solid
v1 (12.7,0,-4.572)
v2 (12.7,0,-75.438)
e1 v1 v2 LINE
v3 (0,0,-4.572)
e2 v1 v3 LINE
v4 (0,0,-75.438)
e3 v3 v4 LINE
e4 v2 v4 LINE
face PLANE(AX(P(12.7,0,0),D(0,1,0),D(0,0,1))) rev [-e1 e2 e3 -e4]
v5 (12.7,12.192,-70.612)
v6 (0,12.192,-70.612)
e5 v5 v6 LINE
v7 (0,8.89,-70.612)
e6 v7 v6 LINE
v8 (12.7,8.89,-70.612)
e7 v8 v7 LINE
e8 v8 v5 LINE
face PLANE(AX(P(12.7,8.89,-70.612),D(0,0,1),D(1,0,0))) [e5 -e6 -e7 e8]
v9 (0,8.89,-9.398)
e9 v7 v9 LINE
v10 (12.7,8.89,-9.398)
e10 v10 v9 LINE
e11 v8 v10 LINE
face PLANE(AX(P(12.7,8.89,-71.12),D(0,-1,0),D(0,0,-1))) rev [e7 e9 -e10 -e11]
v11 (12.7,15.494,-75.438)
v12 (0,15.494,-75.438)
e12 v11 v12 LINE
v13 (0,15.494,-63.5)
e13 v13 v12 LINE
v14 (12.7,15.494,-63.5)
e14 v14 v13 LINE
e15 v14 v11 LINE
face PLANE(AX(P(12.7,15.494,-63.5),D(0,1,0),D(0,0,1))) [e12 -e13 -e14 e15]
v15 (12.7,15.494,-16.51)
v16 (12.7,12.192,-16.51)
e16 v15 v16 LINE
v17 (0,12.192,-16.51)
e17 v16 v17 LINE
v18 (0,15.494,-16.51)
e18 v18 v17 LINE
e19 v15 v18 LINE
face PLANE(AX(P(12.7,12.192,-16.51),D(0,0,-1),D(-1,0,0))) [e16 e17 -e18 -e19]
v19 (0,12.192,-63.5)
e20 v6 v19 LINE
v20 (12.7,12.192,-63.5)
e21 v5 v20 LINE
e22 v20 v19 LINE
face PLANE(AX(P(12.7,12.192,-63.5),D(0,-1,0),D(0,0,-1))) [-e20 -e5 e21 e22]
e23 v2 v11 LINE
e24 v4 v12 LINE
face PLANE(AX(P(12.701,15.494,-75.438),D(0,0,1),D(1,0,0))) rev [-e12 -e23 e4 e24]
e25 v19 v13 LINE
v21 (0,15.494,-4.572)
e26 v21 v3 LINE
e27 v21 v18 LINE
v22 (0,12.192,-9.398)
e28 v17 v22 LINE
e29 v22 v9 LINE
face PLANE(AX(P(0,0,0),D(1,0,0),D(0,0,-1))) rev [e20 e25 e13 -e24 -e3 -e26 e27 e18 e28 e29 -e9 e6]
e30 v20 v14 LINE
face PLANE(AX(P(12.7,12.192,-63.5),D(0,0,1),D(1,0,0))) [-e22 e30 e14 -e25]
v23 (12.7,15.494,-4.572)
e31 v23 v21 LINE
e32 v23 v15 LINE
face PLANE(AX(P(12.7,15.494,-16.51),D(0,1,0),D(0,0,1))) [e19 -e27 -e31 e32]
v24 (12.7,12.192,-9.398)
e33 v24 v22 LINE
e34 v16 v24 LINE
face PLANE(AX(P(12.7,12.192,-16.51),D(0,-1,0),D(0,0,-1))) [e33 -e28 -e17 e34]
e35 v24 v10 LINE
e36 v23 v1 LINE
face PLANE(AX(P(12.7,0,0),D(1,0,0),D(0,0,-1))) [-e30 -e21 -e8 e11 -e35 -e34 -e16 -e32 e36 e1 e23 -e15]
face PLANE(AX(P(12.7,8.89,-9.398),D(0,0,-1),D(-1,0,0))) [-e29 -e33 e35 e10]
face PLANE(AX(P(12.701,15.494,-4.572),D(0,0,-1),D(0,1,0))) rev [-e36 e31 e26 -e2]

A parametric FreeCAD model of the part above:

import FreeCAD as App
import Part
import Sketcher

V = App.Vector
Q = App.Units.Quantity

doc = App.newDocument("Part")
params = doc.addObject("Spreadsheet::Sheet", "Params")
for row, (alias, value) in enumerate([
    ("sketch1_width", "0.4 in"),
    ("sketch1_width2", "0.75 in"),
    ("sketch1_height", "3.15 in"),
    ("sketch1_height2", "0.35 in"),
    ("pad1_length", "0.5 in"),
    ("sketch2_width", "0.13 in"),
    ("sketch2_height", "0.28 in"),
    ("sketch2_height2", "0.45 in"),
    ("pad2_length", "0.5 in"),
    ("sketch3_width", "0.14 in"),
    ("sketch3_width2", "0.75 in"),
    ("sketch3_height", "0.17 in"),
    ("sketch3_height2", "0.35 in"),
    ("sketch4_width", "0.61 in"),
    ("sketch4_width2", "0.75 in"),
    ("sketch4_height", "0.17 in"),
    ("sketch4_height2", "0.18 in"),
    ("sketch5_width", "0.13 in"),
    ("sketch5_height", "0.28 in"),
    ("pad3_length", "0.125 in"),
    ("sketch6_width", "0.13 in"),
    ("sketch6_height", "0.28 in"),
    ("pad4_length", "0.125 in"),
    ("sketch7_width", "0.13 in"),
    ("sketch7_height", "0.28 in"),
    ("sketch8_width", "0.13 in"),
    ("sketch8_height", "0.28 in"),
], start=1):
    params.set(f"A{row}", alias)
    params.set(f"B{row}", "=" + value)
    params.setAlias(f"B{row}", alias)

body = doc.addObject("PartDesign::Body", "Body")

# Sketch on YZ plane
sketch1 = body.newObject("Sketcher::SketchObject", "Sketch")
sketch1.AttachmentSupport = (doc.getObject("YZ_Plane"), [""])
sketch1.MapMode = "FlatFace"
sketch1.addGeometry([
    Part.LineSegment(V(0, 0, 0), V(0, -80, 0)),  # 0
    Part.LineSegment(V(0, -80, 0), V(19, -80, 0)),  # 1
    Part.LineSegment(V(19, -80, 0), V(19, -71, 0)),  # 2
    Part.LineSegment(V(19, -71, 0), V(9, -71, 0)),  # 3
    Part.LineSegment(V(9, -71, 0), V(9, -9, 0)),  # 4
    Part.LineSegment(V(9, -9, 0), V(19, -9, 0)),  # 5
    Part.LineSegment(V(19, -9, 0), V(19, 0, 0)),  # 6
    Part.LineSegment(V(19, 0, 0), V(0, 0, 0)),  # 7
], False)
sketch1.addConstraint([
    Sketcher.Constraint("Coincident", 0, 2, 1, 1),
    Sketcher.Constraint("Coincident", 1, 2, 2, 1),
    Sketcher.Constraint("Coincident", 2, 2, 3, 1),
    Sketcher.Constraint("Coincident", 3, 2, 4, 1),
    Sketcher.Constraint("Coincident", 4, 2, 5, 1),
    Sketcher.Constraint("Coincident", 5, 2, 6, 1),
    Sketcher.Constraint("Coincident", 6, 2, 7, 1),
    Sketcher.Constraint("Coincident", 7, 2, 0, 1),
    Sketcher.Constraint("Vertical", 0),
    Sketcher.Constraint("Horizontal", 1),
    Sketcher.Constraint("Vertical", 2),
    Sketcher.Constraint("Horizontal", 3),
    Sketcher.Constraint("Vertical", 4),
    Sketcher.Constraint("Horizontal", 5),
    Sketcher.Constraint("Vertical", 6),
    Sketcher.Constraint("Horizontal", 7),
    Sketcher.Constraint("Coincident", 7, 2, -1, 1),
    Sketcher.Constraint("Vertical", 2, 2, 5, 2),
    Sketcher.Constraint("Equal", 2, 6),
    Sketcher.Constraint("DistanceX", 3, 2, 3, 1, Q("0.4 in")),
    Sketcher.Constraint("DistanceX", 1, 1, 1, 2, Q("0.75 in")),
    Sketcher.Constraint("DistanceY", 0, 2, 0, 1, Q("3.15 in")),
    Sketcher.Constraint("DistanceY", 2, 1, 2, 2, Q("0.35 in")),
])
sketch1.setExpression("Constraints[19]", "Params.sketch1_width")
sketch1.setExpression("Constraints[20]", "Params.sketch1_width2")
sketch1.setExpression("Constraints[21]", "Params.sketch1_height")
sketch1.setExpression("Constraints[22]", "Params.sketch1_height2")
pad1 = body.newObject("PartDesign::Pad", "Pad")
pad1.Profile = sketch1
pad1.setExpression("Length", "Params.pad1_length")

# Sketch on YZ plane
sketch2 = body.newObject("Sketcher::SketchObject", "Sketch001")
sketch2.AttachmentSupport = (doc.getObject("YZ_Plane"), [""])
sketch2.MapMode = "FlatFace"
sketch2.addGeometry([
    Part.LineSegment(V(12.2, -70.6, 0), V(12.2, -63.5, 0)),  # 0
    Part.LineSegment(V(12.2, -63.5, 0), V(15.5, -63.5, 0)),  # 1
    Part.LineSegment(V(15.5, -63.5, 0), V(15.5, -74.9, 0)),  # 2
    Part.LineSegment(V(15.5, -74.9, 0), V(8.9, -74.9, 0)),  # 3
    Part.LineSegment(V(8.9, -74.9, 0), V(8.9, -70.6, 0)),  # 4
    Part.LineSegment(V(8.9, -70.6, 0), V(12.2, -70.6, 0)),  # 5
    Part.LineSegment(V(12.2, -16.5, 0), V(12.2, -9.4, 0)),  # 6
    Part.LineSegment(V(12.2, -9.4, 0), V(8.9, -9.4, 0)),  # 7
    Part.LineSegment(V(8.9, -9.4, 0), V(8.9, -5.1, 0)),  # 8
    Part.LineSegment(V(8.9, -5.1, 0), V(15.5, -5.1, 0)),  # 9
    Part.LineSegment(V(15.5, -5.1, 0), V(15.5, -16.5, 0)),  # 10
    Part.LineSegment(V(15.5, -16.5, 0), V(12.2, -16.5, 0)),  # 11
], False)
sketch2.addConstraint([
    Sketcher.Constraint("Coincident", 0, 2, 1, 1),
    Sketcher.Constraint("Coincident", 1, 2, 2, 1),
    Sketcher.Constraint("Coincident", 2, 2, 3, 1),
    Sketcher.Constraint("Coincident", 3, 2, 4, 1),
    Sketcher.Constraint("Coincident", 4, 2, 5, 1),
    Sketcher.Constraint("Coincident", 5, 2, 0, 1),
    Sketcher.Constraint("Coincident", 6, 2, 7, 1),
    Sketcher.Constraint("Coincident", 7, 2, 8, 1),
    Sketcher.Constraint("Coincident", 8, 2, 9, 1),
    Sketcher.Constraint("Coincident", 9, 2, 10, 1),
    Sketcher.Constraint("Coincident", 10, 2, 11, 1),
    Sketcher.Constraint("Coincident", 11, 2, 6, 1),
    Sketcher.Constraint("Vertical", 0),
    Sketcher.Constraint("Horizontal", 1),
    Sketcher.Constraint("Vertical", 2),
    Sketcher.Constraint("Horizontal", 3),
    Sketcher.Constraint("Vertical", 4),
    Sketcher.Constraint("Horizontal", 5),
    Sketcher.Constraint("Vertical", 6),
    Sketcher.Constraint("Horizontal", 7),
    Sketcher.Constraint("Vertical", 8),
    Sketcher.Constraint("Horizontal", 9),
    Sketcher.Constraint("Vertical", 10),
    Sketcher.Constraint("Horizontal", 11),
    Sketcher.Constraint("Vertical", 5, 2, 6, 2),
    Sketcher.Constraint("Vertical", 4, 2, 7, 2),
    Sketcher.Constraint("Vertical", 2, 2, 9, 2),
    Sketcher.Constraint("Equal", 1, 5),
    Sketcher.Constraint("Equal", 0, 6),
    Sketcher.Constraint("Equal", 4, 8),
    Sketcher.Constraint("DistanceX", 1, 1, 1, 2, Q("0.13 in")),
    Sketcher.Constraint("DistanceY", 0, 1, 0, 2, Q("0.28 in")),
    Sketcher.Constraint("DistanceY", 2, 2, 2, 1, Q("0.45 in")),
    Sketcher.Constraint("DistanceY", 0, 2, -1, 1, Q("2.5 in")),
    Sketcher.Constraint("DistanceY", 8, 2, -1, 1, Q("0.2 in")),
    Sketcher.Constraint("DistanceX", -1, 1, 0, 2, Q("0.48 in")),
])
sketch2.setExpression("Constraints[30]", "Params.sketch2_width")
sketch2.setExpression("Constraints[31]", "Params.sketch2_height")
sketch2.setExpression("Constraints[32]", "Params.sketch2_height2")
pad2 = body.newObject("PartDesign::Pad", "Pad001")
pad2.Profile = sketch2
pad2.setExpression("Length", "Params.pad2_length")

# Sketch on YZ plane
sketch3 = body.newObject("Sketcher::SketchObject", "Sketch002")
sketch3.AttachmentSupport = (doc.getObject("YZ_Plane"), [""])
sketch3.MapMode = "FlatFace"
sketch3.addGeometry([
    Part.LineSegment(V(15.5, -75.4, 0), V(15.5, -71.1, 0)),  # 0
    Part.LineSegment(V(15.5, -71.1, 0), V(19.1, -71.1, 0)),  # 1
    Part.LineSegment(V(19.1, -71.1, 0), V(19.1, -80, 0)),  # 2
    Part.LineSegment(V(19.1, -80, 0), V(0, -80, 0)),  # 3
    Part.LineSegment(V(0, -80, 0), V(0, -75.4, 0)),  # 4
    Part.LineSegment(V(0, -75.4, 0), V(15.5, -75.4, 0)),  # 5
], False)
sketch3.addConstraint([
    Sketcher.Constraint("Coincident", 0, 2, 1, 1),
    Sketcher.Constraint("Coincident", 1, 2, 2, 1),
    Sketcher.Constraint("Coincident", 2, 2, 3, 1),
    Sketcher.Constraint("Coincident", 3, 2, 4, 1),
    Sketcher.Constraint("Coincident", 4, 2, 5, 1),
    Sketcher.Constraint("Coincident", 5, 2, 0, 1),
    Sketcher.Constraint("Vertical", 0),
    Sketcher.Constraint("Horizontal", 1),
    Sketcher.Constraint("Vertical", 2),
    Sketcher.Constraint("Horizontal", 3),
    Sketcher.Constraint("Vertical", 4),
    Sketcher.Constraint("Horizontal", 5),
    Sketcher.Constraint("PointOnObject", 3, 2, -2),
    Sketcher.Constraint("DistanceX", 1, 1, 1, 2, Q("0.14 in")),
    Sketcher.Constraint("DistanceX", 3, 2, 3, 1, Q("0.75 in")),
    Sketcher.Constraint("DistanceY", 0, 1, 0, 2, Q("0.17 in")),
    Sketcher.Constraint("DistanceY", 2, 2, 2, 1, Q("0.35 in")),
    Sketcher.Constraint("DistanceY", 0, 2, -1, 1, Q("2.8 in")),
])
sketch3.setExpression("Constraints[13]", "Params.sketch3_width")
sketch3.setExpression("Constraints[14]", "Params.sketch3_width2")
sketch3.setExpression("Constraints[15]", "Params.sketch3_height")
sketch3.setExpression("Constraints[16]", "Params.sketch3_height2")
pocket1 = body.newObject("PartDesign::Pocket", "Pocket")
pocket1.Profile = sketch3
pocket1.Type = "UpToFirst"
pocket1.Reversed = True

# Sketch on YZ plane
sketch4 = body.newObject("Sketcher::SketchObject", "Sketch003")
sketch4.AttachmentSupport = (doc.getObject("YZ_Plane"), [""])
sketch4.MapMode = "FlatFace"
sketch4.addGeometry([
    Part.LineSegment(V(15.5, -8.9, 0), V(15.5, -4.6, 0)),  # 0
    Part.LineSegment(V(15.5, -4.6, 0), V(0, -4.6, 0)),  # 1
    Part.LineSegment(V(0, -4.6, 0), V(0, 0, 0)),  # 2
    Part.LineSegment(V(0, 0, 0), V(19.1, 0, 0)),  # 3
    Part.LineSegment(V(19.1, 0, 0), V(19.1, -8.9, 0)),  # 4
    Part.LineSegment(V(19.1, -8.9, 0), V(15.5, -8.9, 0)),  # 5
], False)
sketch4.addConstraint([
    Sketcher.Constraint("Coincident", 0, 2, 1, 1),
    Sketcher.Constraint("Coincident", 1, 2, 2, 1),
    Sketcher.Constraint("Coincident", 2, 2, 3, 1),
    Sketcher.Constraint("Coincident", 3, 2, 4, 1),
    Sketcher.Constraint("Coincident", 4, 2, 5, 1),
    Sketcher.Constraint("Coincident", 5, 2, 0, 1),
    Sketcher.Constraint("Vertical", 0),
    Sketcher.Constraint("Horizontal", 1),
    Sketcher.Constraint("Vertical", 2),
    Sketcher.Constraint("Horizontal", 3),
    Sketcher.Constraint("Vertical", 4),
    Sketcher.Constraint("Horizontal", 5),
    Sketcher.Constraint("Coincident", 2, 2, -1, 1),
    Sketcher.Constraint("DistanceX", 1, 2, 1, 1, Q("0.61 in")),
    Sketcher.Constraint("DistanceX", 3, 1, 3, 2, Q("0.75 in")),
    Sketcher.Constraint("DistanceY", 0, 1, 0, 2, Q("0.17 in")),
    Sketcher.Constraint("DistanceY", 2, 1, 2, 2, Q("0.18 in")),
])
sketch4.setExpression("Constraints[13]", "Params.sketch4_width")
sketch4.setExpression("Constraints[14]", "Params.sketch4_width2")
sketch4.setExpression("Constraints[15]", "Params.sketch4_height")
sketch4.setExpression("Constraints[16]", "Params.sketch4_height2")
pocket2 = body.newObject("PartDesign::Pocket", "Pocket001")
pocket2.Profile = sketch4
pocket2.Type = "UpToFirst"
pocket2.Reversed = True

# Sketch on YZ plane
sketch5 = body.newObject("Sketcher::SketchObject", "Sketch004")
sketch5.AttachmentSupport = (doc.getObject("YZ_Plane"), [""])
sketch5.MapMode = "FlatFace"
sketch5.AttachmentOffset = App.Placement(V(0, 0, 0.5 * 25.4), App.Rotation())
sketch5.addGeometry([
    Part.LineSegment(V(12.2, -9.4, 0), V(8.9, -9.4, 0)),
    Part.LineSegment(V(8.9, -9.4, 0), V(8.9, -16.5, 0)),
    Part.LineSegment(V(8.9, -16.5, 0), V(12.2, -16.5, 0)),
    Part.LineSegment(V(12.2, -16.5, 0), V(12.2, -9.4, 0)),
], False)
sketch5.addConstraint([
    Sketcher.Constraint("Coincident", 0, 2, 1, 1),
    Sketcher.Constraint("Coincident", 1, 2, 2, 1),
    Sketcher.Constraint("Coincident", 2, 2, 3, 1),
    Sketcher.Constraint("Coincident", 3, 2, 0, 1),
    Sketcher.Constraint("Horizontal", 0),
    Sketcher.Constraint("Vertical", 1),
    Sketcher.Constraint("Horizontal", 2),
    Sketcher.Constraint("Vertical", 3),
    Sketcher.Constraint("DistanceX", 0, 2, 0, 1, Q("0.13 in")),
    Sketcher.Constraint("DistanceY", 1, 2, 1, 1, Q("0.28 in")),
    Sketcher.Constraint("DistanceX", -1, 1, 0, 2, Q("0.35 in")),
    Sketcher.Constraint("DistanceY", 0, 2, -1, 1, Q("0.37 in")),
])
sketch5.setExpression("Constraints[8]", "Params.sketch5_width")
sketch5.setExpression("Constraints[9]", "Params.sketch5_height")
pad3 = body.newObject("PartDesign::Pad", "Pad002")
pad3.Profile = sketch5
pad3.setExpression("Length", "Params.pad3_length")
pad3.Reversed = True

# Sketch on YZ plane
sketch6 = body.newObject("Sketcher::SketchObject", "Sketch005")
sketch6.AttachmentSupport = (doc.getObject("YZ_Plane"), [""])
sketch6.MapMode = "FlatFace"
sketch6.AttachmentOffset = App.Placement(V(0, 0, 0.5 * 25.4), App.Rotation())
sketch6.addGeometry([
    Part.LineSegment(V(12.2, -63.5, 0), V(8.9, -63.5, 0)),
    Part.LineSegment(V(8.9, -63.5, 0), V(8.9, -70.6, 0)),
    Part.LineSegment(V(8.9, -70.6, 0), V(12.2, -70.6, 0)),
    Part.LineSegment(V(12.2, -70.6, 0), V(12.2, -63.5, 0)),
], False)
sketch6.addConstraint([
    Sketcher.Constraint("Coincident", 0, 2, 1, 1),
    Sketcher.Constraint("Coincident", 1, 2, 2, 1),
    Sketcher.Constraint("Coincident", 2, 2, 3, 1),
    Sketcher.Constraint("Coincident", 3, 2, 0, 1),
    Sketcher.Constraint("Horizontal", 0),
    Sketcher.Constraint("Vertical", 1),
    Sketcher.Constraint("Horizontal", 2),
    Sketcher.Constraint("Vertical", 3),
    Sketcher.Constraint("DistanceX", 0, 2, 0, 1, Q("0.13 in")),
    Sketcher.Constraint("DistanceY", 1, 2, 1, 1, Q("0.28 in")),
    Sketcher.Constraint("DistanceY", 0, 2, -1, 1, Q("2.5 in")),
    Sketcher.Constraint("DistanceX", -1, 1, 0, 2, Q("0.35 in")),
])
sketch6.setExpression("Constraints[8]", "Params.sketch6_width")
sketch6.setExpression("Constraints[9]", "Params.sketch6_height")
pad4 = body.newObject("PartDesign::Pad", "Pad003")
pad4.Profile = sketch6
pad4.setExpression("Length", "Params.pad4_length")
pad4.Reversed = True

# Sketch on YZ plane
sketch7 = body.newObject("Sketcher::SketchObject", "Sketch006")
sketch7.AttachmentSupport = (doc.getObject("YZ_Plane"), [""])
sketch7.MapMode = "FlatFace"
sketch7.AttachmentOffset = App.Placement(V(0, 0, 0.5 * 25.4), App.Rotation())
sketch7.addGeometry([
    Part.LineSegment(V(12.2, -9.4, 0), V(8.9, -9.4, 0)),
    Part.LineSegment(V(8.9, -9.4, 0), V(8.9, -16.5, 0)),
    Part.LineSegment(V(8.9, -16.5, 0), V(12.2, -16.5, 0)),
    Part.LineSegment(V(12.2, -16.5, 0), V(12.2, -9.4, 0)),
], False)
sketch7.addConstraint([
    Sketcher.Constraint("Coincident", 0, 2, 1, 1),
    Sketcher.Constraint("Coincident", 1, 2, 2, 1),
    Sketcher.Constraint("Coincident", 2, 2, 3, 1),
    Sketcher.Constraint("Coincident", 3, 2, 0, 1),
    Sketcher.Constraint("Horizontal", 0),
    Sketcher.Constraint("Vertical", 1),
    Sketcher.Constraint("Horizontal", 2),
    Sketcher.Constraint("Vertical", 3),
    Sketcher.Constraint("DistanceX", 0, 2, 0, 1, Q("0.13 in")),
    Sketcher.Constraint("DistanceY", 1, 2, 1, 1, Q("0.28 in")),
    Sketcher.Constraint("DistanceX", -1, 1, 0, 2, Q("0.35 in")),
    Sketcher.Constraint("DistanceY", 0, 2, -1, 1, Q("0.37 in")),
])
sketch7.setExpression("Constraints[8]", "Params.sketch7_width")
sketch7.setExpression("Constraints[9]", "Params.sketch7_height")
pocket3 = body.newObject("PartDesign::Pocket", "Pocket002")
pocket3.Profile = sketch7
pocket3.Type = "UpToFirst"

# Sketch on YZ plane
sketch8 = body.newObject("Sketcher::SketchObject", "Sketch007")
sketch8.AttachmentSupport = (doc.getObject("YZ_Plane"), [""])
sketch8.MapMode = "FlatFace"
sketch8.AttachmentOffset = App.Placement(V(0, 0, 0.5 * 25.4), App.Rotation())
sketch8.addGeometry([
    Part.LineSegment(V(12.2, -63.5, 0), V(8.9, -63.5, 0)),
    Part.LineSegment(V(8.9, -63.5, 0), V(8.9, -70.6, 0)),
    Part.LineSegment(V(8.9, -70.6, 0), V(12.2, -70.6, 0)),
    Part.LineSegment(V(12.2, -70.6, 0), V(12.2, -63.5, 0)),
], False)
sketch8.addConstraint([
    Sketcher.Constraint("Coincident", 0, 2, 1, 1),
    Sketcher.Constraint("Coincident", 1, 2, 2, 1),
    Sketcher.Constraint("Coincident", 2, 2, 3, 1),
    Sketcher.Constraint("Coincident", 3, 2, 0, 1),
    Sketcher.Constraint("Horizontal", 0),
    Sketcher.Constraint("Vertical", 1),
    Sketcher.Constraint("Horizontal", 2),
    Sketcher.Constraint("Vertical", 3),
    Sketcher.Constraint("DistanceX", 0, 2, 0, 1, Q("0.13 in")),
    Sketcher.Constraint("DistanceY", 1, 2, 1, 1, Q("0.28 in")),
    Sketcher.Constraint("DistanceY", 0, 2, -1, 1, Q("2.5 in")),
    Sketcher.Constraint("DistanceX", -1, 1, 0, 2, Q("0.35 in")),
])
sketch8.setExpression("Constraints[8]", "Params.sketch8_width")
sketch8.setExpression("Constraints[9]", "Params.sketch8_height")
pocket4 = body.newObject("PartDesign::Pocket", "Pocket003")
pocket4.Profile = sketch8
pocket4.Type = "UpToFirst"

doc.recompute()
